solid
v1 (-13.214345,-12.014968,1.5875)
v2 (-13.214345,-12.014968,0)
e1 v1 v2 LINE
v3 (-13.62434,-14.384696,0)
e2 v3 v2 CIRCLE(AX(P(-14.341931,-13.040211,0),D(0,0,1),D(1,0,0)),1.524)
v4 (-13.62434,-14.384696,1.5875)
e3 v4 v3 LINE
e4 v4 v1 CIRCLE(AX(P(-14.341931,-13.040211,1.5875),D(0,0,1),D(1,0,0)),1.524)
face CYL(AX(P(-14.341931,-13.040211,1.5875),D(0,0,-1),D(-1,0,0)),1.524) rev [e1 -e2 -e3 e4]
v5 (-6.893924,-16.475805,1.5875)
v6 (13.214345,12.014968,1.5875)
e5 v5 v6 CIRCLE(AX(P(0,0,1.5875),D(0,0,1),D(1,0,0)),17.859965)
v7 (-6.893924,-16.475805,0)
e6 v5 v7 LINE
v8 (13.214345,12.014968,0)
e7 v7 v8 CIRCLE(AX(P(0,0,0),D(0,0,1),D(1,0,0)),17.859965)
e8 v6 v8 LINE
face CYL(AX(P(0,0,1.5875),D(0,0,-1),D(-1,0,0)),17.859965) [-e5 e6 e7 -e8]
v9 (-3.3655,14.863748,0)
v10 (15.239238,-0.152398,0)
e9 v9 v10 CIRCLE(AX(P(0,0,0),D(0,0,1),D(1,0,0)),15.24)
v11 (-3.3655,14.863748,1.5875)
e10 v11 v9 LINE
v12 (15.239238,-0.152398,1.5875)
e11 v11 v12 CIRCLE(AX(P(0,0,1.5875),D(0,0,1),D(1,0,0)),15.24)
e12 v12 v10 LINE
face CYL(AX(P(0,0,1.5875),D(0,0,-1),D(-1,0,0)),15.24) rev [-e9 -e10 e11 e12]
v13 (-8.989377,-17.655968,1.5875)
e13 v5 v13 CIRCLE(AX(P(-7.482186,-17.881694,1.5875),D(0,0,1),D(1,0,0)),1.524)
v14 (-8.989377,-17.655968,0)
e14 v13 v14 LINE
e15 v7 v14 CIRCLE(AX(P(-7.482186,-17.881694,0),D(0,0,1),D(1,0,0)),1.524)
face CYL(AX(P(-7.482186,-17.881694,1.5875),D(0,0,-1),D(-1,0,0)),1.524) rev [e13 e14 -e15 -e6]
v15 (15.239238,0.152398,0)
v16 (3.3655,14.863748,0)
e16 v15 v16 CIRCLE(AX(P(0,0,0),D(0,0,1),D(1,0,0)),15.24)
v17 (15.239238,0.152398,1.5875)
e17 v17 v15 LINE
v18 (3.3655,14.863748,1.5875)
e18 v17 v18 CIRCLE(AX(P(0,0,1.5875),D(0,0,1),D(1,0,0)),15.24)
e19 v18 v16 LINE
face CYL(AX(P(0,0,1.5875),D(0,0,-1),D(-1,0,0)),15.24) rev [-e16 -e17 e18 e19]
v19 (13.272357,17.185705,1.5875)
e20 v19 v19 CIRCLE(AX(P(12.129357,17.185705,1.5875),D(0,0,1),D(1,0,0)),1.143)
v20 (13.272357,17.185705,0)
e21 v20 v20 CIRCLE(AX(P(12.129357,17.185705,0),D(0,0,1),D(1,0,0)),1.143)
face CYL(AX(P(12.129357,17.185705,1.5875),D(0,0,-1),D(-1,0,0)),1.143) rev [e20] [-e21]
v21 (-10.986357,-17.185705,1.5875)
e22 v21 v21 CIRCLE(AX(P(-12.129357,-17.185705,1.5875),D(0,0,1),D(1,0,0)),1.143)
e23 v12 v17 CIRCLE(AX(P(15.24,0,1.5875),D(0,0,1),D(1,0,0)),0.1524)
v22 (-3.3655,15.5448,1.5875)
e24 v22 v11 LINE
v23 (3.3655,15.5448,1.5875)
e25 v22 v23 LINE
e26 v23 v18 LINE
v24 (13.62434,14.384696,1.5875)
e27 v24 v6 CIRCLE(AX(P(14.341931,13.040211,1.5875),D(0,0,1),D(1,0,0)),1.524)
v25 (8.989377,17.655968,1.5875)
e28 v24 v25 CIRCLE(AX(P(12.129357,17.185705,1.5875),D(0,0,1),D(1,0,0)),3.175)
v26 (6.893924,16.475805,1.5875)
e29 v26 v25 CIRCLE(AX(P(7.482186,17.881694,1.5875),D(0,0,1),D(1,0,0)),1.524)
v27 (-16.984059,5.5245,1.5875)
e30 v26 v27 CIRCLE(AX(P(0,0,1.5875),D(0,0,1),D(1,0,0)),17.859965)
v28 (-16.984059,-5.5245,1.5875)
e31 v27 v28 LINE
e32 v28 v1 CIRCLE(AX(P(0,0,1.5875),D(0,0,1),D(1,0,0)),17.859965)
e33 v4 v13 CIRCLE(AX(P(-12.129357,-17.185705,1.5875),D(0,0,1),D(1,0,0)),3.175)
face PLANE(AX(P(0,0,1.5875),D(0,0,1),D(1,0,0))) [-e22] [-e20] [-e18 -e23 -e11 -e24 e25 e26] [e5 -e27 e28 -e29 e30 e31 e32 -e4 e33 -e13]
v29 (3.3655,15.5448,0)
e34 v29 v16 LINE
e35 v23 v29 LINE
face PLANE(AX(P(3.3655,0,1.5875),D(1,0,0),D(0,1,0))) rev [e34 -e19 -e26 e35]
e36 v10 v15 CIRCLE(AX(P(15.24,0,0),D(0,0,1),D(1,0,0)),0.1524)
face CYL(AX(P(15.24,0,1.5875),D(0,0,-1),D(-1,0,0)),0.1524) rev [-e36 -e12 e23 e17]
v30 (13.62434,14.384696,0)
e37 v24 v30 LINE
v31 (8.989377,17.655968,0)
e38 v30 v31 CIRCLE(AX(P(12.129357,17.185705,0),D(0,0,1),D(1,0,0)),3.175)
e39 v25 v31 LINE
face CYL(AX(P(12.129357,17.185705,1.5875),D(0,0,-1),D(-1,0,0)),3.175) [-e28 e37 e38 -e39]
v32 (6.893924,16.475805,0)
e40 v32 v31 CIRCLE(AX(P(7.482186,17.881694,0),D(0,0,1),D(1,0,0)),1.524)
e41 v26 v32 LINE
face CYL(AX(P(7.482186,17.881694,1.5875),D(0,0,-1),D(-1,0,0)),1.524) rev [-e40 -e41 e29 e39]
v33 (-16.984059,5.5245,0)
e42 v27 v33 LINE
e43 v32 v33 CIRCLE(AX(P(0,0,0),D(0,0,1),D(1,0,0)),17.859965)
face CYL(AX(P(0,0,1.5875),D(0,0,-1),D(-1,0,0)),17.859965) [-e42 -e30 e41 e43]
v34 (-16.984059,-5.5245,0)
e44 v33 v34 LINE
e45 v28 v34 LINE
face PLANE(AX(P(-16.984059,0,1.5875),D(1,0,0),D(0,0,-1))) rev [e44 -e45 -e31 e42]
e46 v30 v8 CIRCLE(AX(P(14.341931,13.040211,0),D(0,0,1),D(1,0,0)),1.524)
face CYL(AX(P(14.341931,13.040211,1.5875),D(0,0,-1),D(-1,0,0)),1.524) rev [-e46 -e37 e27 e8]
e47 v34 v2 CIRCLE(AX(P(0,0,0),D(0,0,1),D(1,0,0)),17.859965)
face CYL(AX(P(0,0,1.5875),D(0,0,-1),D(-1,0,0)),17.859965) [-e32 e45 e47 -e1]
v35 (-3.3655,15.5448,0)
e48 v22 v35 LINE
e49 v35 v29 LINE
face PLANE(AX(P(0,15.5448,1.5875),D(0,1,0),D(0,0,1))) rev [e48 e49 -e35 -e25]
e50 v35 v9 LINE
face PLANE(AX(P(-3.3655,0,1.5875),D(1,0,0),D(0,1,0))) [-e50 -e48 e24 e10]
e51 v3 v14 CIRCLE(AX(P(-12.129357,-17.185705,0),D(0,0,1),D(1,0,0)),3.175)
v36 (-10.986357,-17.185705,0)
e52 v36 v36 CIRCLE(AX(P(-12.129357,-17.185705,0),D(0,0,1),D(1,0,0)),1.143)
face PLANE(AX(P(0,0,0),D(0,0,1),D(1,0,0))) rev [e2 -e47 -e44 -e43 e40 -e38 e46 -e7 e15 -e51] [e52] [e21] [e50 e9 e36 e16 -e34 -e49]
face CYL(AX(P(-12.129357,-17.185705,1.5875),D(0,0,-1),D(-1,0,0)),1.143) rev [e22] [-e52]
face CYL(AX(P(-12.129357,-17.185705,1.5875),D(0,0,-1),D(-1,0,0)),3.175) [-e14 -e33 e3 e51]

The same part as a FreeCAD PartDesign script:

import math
import FreeCAD as App
import Part
import Sketcher
Q = App.Units.Quantity

doc = App.newDocument("Part")
params = doc.addObject("Spreadsheet::Sheet", "Params")
for row, (alias, value) in enumerate([
    ("sketch1_radius", "0.6 in"),
    ("sketch1_diameter", "0.09 in"),
    ("sketch1_radius2", "0.06 in"),
    ("sketch1_radius3", "0.125 in"),
    ("sketch1_radius4", "0.006 in"),
    ("pad1_length", "0.0625 in"),
], start=1):
    params.set(f"A{row}", alias)
    params.set(f"B{row}", "=" + value)
    params.setAlias(f"B{row}", alias)

body = doc.addObject("PartDesign::Body", "Body")

sketch1 = body.newObject("Sketcher::SketchObject", "Sketch")
sketch1.AttachmentSupport = (doc.getObject("XY_Plane"), [""])
sketch1.MapMode = "FlatFace"
sketch1.addGeometry(Part.ArcOfCircle(Part.Circle(App.Vector(7.48, 17.88, 0), App.Vector(0, 0, 1), 1.52), math.radians(-113), math.radians(-9)), False)
sketch1.addGeometry(Part.ArcOfCircle(Part.Circle(App.Vector(0, 0, 0), App.Vector(0, 0, 1), 17.86), math.radians(67), math.radians(162)), False)
sketch1.addGeometry(Part.LineSegment(App.Vector(-16.98, 5.52, 0), App.Vector(-16.98, -5.52, 0)), False)
sketch1.addGeometry(Part.ArcOfCircle(Part.Circle(App.Vector(0, 0, 0), App.Vector(0, 0, 1), 17.86), math.radians(-162), math.radians(-138)), False)
sketch1.addGeometry(Part.ArcOfCircle(Part.Circle(App.Vector(-14.34, -13.04, 0), App.Vector(0, 0, 1), 1.52), math.radians(-62), math.radians(42)), False)
sketch1.addGeometry(Part.ArcOfCircle(Part.Circle(App.Vector(-12.13, -17.19, 0), App.Vector(0, 0, 1), 3.17), math.radians(118), math.radians(351)), False)
sketch1.addGeometry(Part.ArcOfCircle(Part.Circle(App.Vector(-7.48, -17.88, 0), App.Vector(0, 0, 1), 1.52), math.radians(67), math.radians(171)), False)
sketch1.addGeometry(Part.ArcOfCircle(Part.Circle(App.Vector(0, 0, 0), App.Vector(0, 0, 1), 17.86), math.radians(-113), math.radians(42)), False)
sketch1.addGeometry(Part.ArcOfCircle(Part.Circle(App.Vector(14.34, 13.04, 0), App.Vector(0, 0, 1), 1.52), math.radians(118), math.radians(222)), False)
sketch1.addGeometry(Part.ArcOfCircle(Part.Circle(App.Vector(12.13, 17.19, 0), App.Vector(0, 0, 1), 3.17), math.radians(-62), math.radians(171)), False)
sketch1.addGeometry(Part.Circle(App.Vector(12.13, 17.19, 0), App.Vector(0, 0, 1), 1.14), False)
sketch1.addGeometry(Part.LineSegment(App.Vector(-3.37, 14.86, 0), App.Vector(-3.37, 15.54, 0)), False)
sketch1.addGeometry(Part.LineSegment(App.Vector(-3.37, 15.54, 0), App.Vector(3.37, 15.54, 0)), False)
sketch1.addGeometry(Part.LineSegment(App.Vector(3.37, 15.54, 0), App.Vector(3.37, 14.86, 0)), False)
sketch1.addGeometry(Part.ArcOfCircle(Part.Circle(App.Vector(0, 0, 0), App.Vector(0, 0, 1), 15.24), math.radians(1), math.radians(77)), False)
sketch1.addGeometry(Part.ArcOfCircle(Part.Circle(App.Vector(15.24, 0, 0), App.Vector(0, 0, 1), 0.15), math.radians(0), math.radians(90)), False)
sketch1.addGeometry(Part.ArcOfCircle(Part.Circle(App.Vector(15.24, 0, 0), App.Vector(0, 0, 1), 0.15), math.radians(-90), math.radians(0)), False)
sketch1.addGeometry(Part.ArcOfCircle(Part.Circle(App.Vector(0, 0, 0), App.Vector(0, 0, 1), 15.24), math.radians(103), math.radians(359)), False)
sketch1.addGeometry(Part.Circle(App.Vector(-12.13, -17.19, 0), App.Vector(0, 0, 1), 1.14), False)
sketch1.addConstraint(Sketcher.Constraint("Tangent", 0, 1, 1, 1))
sketch1.addConstraint(Sketcher.Constraint("Coincident", 1, 2, 2, 1))
sketch1.addConstraint(Sketcher.Constraint("Coincident", 2, 2, 3, 1))
sketch1.addConstraint(Sketcher.Constraint("Tangent", 3, 2, 4, 2))
sketch1.addConstraint(Sketcher.Constraint("Tangent", 4, 1, 5, 1))
sketch1.addConstraint(Sketcher.Constraint("Tangent", 5, 2, 6, 2))
sketch1.addConstraint(Sketcher.Constraint("Tangent", 6, 1, 7, 1))
sketch1.addConstraint(Sketcher.Constraint("Tangent", 7, 2, 8, 2))
sketch1.addConstraint(Sketcher.Constraint("Tangent", 8, 1, 9, 1))
sketch1.addConstraint(Sketcher.Constraint("Tangent", 9, 2, 0, 2))
sketch1.addConstraint(Sketcher.Constraint("Coincident", 11, 2, 12, 1))
sketch1.addConstraint(Sketcher.Constraint("Coincident", 12, 2, 13, 1))
sketch1.addConstraint(Sketcher.Constraint("Coincident", 13, 2, 14, 2))
sketch1.addConstraint(Sketcher.Constraint("Coincident", 14, 1, 15, 2))
sketch1.addConstraint(Sketcher.Constraint("Tangent", 15, 1, 16, 2))
sketch1.addConstraint(Sketcher.Constraint("Coincident", 16, 1, 17, 2))
sketch1.addConstraint(Sketcher.Constraint("Coincident", 17, 1, 11, 1))
sketch1.addConstraint(Sketcher.Constraint("Vertical", 2))
sketch1.addConstraint(Sketcher.Constraint("Vertical", 11))
sketch1.addConstraint(Sketcher.Constraint("Horizontal", 12))
sketch1.addConstraint(Sketcher.Constraint("Vertical", 13))
sketch1.addConstraint(Sketcher.Constraint("Coincident", 1, 3, -1, 1))
sketch1.addConstraint(Sketcher.Constraint("Coincident", 3, 3, -1, 1))
sketch1.addConstraint(Sketcher.Constraint("Coincident", 7, 3, -1, 1))
sketch1.addConstraint(Sketcher.Constraint("Coincident", 14, 3, -1, 1))
sketch1.addConstraint(Sketcher.Constraint("Coincident", 17, 3, -1, 1))
sketch1.addConstraint(Sketcher.Constraint("Coincident", 10, 3, 9, 3))
sketch1.addConstraint(Sketcher.Constraint("Coincident", 18, 3, 5, 3))
sketch1.addConstraint(Sketcher.Constraint("Equal", 1, 3))
sketch1.addConstraint(Sketcher.Constraint("Equal", 0, 4))
sketch1.addConstraint(Sketcher.Constraint("Equal", 4, 6))
sketch1.addConstraint(Sketcher.Constraint("Equal", 3, 7))
sketch1.addConstraint(Sketcher.Constraint("Equal", 6, 8))
sketch1.addConstraint(Sketcher.Constraint("Equal", 5, 9))
sketch1.addConstraint(Sketcher.Constraint("Equal", 15, 16))
sketch1.addConstraint(Sketcher.Constraint("Equal", 14, 17))
sketch1.addConstraint(Sketcher.Constraint("Equal", 10, 18))
sketch1.addConstraint(Sketcher.Constraint("Symmetric", 5, 3, 9, 3, -1, 1))
sketch1.addConstraint(Sketcher.Constraint("PointOnObject", 15, 3, -1))
sketch1.addConstraint(Sketcher.Constraint("PointOnObject", 15, 1, -1))
sketch1.addConstraint(Sketcher.Constraint("Horizontal", 13, 2, 17, 1))
sketch1.addConstraint(Sketcher.Constraint("Radius", 14, Q("0.6 in")))
sketch1.addConstraint(Sketcher.Constraint("Diameter", 10, Q("0.09 in")))
sketch1.addConstraint(Sketcher.Constraint("Radius", 0, Q("0.06 in")))
sketch1.addConstraint(Sketcher.Constraint("Radius", 5, Q("0.125 in")))
sketch1.addConstraint(Sketcher.Constraint("Radius", 15, Q("0.006 in")))
sketch1.addConstraint(Sketcher.Constraint("DistanceX", -1, 1, 15, 3, Q("0.6 in")))
sketch1.addConstraint(Sketcher.Constraint("DistanceX", 12, 1, 12, 2, Q("0.265 in")))
sketch1.addConstraint(Sketcher.Constraint("DistanceY", 2, 2, 2, 1, Q("0.435 in")))
sketch1.addConstraint(Sketcher.Constraint("DistanceY", -1, 1, 11, 2, Q("0.612 in")))
sketch1.addConstraint(Sketcher.Constraint("Radius", 1, Q("17.859965 mm")))
sketch1.addConstraint(Sketcher.Constraint("DistanceY", 5, 3, 0, 3, Q("35.067399 mm")))
sketch1.addConstraint(Sketcher.Constraint("DistanceY", 0, 1, 10, 3, Q("0.709899 mm")))
sketch1.setExpression("Constraints[41]", "Params.sketch1_radius")
sketch1.setExpression("Constraints[42]", "Params.sketch1_diameter")
sketch1.setExpression("Constraints[43]", "Params.sketch1_radius2")
sketch1.setExpression("Constraints[44]", "Params.sketch1_radius3")
sketch1.setExpression("Constraints[45]", "Params.sketch1_radius4")
pad1 = body.newObject("PartDesign::Pad", "Pad")
pad1.Profile = sketch1
pad1.setExpression("Length", "Params.pad1_length")

doc.recompute()
